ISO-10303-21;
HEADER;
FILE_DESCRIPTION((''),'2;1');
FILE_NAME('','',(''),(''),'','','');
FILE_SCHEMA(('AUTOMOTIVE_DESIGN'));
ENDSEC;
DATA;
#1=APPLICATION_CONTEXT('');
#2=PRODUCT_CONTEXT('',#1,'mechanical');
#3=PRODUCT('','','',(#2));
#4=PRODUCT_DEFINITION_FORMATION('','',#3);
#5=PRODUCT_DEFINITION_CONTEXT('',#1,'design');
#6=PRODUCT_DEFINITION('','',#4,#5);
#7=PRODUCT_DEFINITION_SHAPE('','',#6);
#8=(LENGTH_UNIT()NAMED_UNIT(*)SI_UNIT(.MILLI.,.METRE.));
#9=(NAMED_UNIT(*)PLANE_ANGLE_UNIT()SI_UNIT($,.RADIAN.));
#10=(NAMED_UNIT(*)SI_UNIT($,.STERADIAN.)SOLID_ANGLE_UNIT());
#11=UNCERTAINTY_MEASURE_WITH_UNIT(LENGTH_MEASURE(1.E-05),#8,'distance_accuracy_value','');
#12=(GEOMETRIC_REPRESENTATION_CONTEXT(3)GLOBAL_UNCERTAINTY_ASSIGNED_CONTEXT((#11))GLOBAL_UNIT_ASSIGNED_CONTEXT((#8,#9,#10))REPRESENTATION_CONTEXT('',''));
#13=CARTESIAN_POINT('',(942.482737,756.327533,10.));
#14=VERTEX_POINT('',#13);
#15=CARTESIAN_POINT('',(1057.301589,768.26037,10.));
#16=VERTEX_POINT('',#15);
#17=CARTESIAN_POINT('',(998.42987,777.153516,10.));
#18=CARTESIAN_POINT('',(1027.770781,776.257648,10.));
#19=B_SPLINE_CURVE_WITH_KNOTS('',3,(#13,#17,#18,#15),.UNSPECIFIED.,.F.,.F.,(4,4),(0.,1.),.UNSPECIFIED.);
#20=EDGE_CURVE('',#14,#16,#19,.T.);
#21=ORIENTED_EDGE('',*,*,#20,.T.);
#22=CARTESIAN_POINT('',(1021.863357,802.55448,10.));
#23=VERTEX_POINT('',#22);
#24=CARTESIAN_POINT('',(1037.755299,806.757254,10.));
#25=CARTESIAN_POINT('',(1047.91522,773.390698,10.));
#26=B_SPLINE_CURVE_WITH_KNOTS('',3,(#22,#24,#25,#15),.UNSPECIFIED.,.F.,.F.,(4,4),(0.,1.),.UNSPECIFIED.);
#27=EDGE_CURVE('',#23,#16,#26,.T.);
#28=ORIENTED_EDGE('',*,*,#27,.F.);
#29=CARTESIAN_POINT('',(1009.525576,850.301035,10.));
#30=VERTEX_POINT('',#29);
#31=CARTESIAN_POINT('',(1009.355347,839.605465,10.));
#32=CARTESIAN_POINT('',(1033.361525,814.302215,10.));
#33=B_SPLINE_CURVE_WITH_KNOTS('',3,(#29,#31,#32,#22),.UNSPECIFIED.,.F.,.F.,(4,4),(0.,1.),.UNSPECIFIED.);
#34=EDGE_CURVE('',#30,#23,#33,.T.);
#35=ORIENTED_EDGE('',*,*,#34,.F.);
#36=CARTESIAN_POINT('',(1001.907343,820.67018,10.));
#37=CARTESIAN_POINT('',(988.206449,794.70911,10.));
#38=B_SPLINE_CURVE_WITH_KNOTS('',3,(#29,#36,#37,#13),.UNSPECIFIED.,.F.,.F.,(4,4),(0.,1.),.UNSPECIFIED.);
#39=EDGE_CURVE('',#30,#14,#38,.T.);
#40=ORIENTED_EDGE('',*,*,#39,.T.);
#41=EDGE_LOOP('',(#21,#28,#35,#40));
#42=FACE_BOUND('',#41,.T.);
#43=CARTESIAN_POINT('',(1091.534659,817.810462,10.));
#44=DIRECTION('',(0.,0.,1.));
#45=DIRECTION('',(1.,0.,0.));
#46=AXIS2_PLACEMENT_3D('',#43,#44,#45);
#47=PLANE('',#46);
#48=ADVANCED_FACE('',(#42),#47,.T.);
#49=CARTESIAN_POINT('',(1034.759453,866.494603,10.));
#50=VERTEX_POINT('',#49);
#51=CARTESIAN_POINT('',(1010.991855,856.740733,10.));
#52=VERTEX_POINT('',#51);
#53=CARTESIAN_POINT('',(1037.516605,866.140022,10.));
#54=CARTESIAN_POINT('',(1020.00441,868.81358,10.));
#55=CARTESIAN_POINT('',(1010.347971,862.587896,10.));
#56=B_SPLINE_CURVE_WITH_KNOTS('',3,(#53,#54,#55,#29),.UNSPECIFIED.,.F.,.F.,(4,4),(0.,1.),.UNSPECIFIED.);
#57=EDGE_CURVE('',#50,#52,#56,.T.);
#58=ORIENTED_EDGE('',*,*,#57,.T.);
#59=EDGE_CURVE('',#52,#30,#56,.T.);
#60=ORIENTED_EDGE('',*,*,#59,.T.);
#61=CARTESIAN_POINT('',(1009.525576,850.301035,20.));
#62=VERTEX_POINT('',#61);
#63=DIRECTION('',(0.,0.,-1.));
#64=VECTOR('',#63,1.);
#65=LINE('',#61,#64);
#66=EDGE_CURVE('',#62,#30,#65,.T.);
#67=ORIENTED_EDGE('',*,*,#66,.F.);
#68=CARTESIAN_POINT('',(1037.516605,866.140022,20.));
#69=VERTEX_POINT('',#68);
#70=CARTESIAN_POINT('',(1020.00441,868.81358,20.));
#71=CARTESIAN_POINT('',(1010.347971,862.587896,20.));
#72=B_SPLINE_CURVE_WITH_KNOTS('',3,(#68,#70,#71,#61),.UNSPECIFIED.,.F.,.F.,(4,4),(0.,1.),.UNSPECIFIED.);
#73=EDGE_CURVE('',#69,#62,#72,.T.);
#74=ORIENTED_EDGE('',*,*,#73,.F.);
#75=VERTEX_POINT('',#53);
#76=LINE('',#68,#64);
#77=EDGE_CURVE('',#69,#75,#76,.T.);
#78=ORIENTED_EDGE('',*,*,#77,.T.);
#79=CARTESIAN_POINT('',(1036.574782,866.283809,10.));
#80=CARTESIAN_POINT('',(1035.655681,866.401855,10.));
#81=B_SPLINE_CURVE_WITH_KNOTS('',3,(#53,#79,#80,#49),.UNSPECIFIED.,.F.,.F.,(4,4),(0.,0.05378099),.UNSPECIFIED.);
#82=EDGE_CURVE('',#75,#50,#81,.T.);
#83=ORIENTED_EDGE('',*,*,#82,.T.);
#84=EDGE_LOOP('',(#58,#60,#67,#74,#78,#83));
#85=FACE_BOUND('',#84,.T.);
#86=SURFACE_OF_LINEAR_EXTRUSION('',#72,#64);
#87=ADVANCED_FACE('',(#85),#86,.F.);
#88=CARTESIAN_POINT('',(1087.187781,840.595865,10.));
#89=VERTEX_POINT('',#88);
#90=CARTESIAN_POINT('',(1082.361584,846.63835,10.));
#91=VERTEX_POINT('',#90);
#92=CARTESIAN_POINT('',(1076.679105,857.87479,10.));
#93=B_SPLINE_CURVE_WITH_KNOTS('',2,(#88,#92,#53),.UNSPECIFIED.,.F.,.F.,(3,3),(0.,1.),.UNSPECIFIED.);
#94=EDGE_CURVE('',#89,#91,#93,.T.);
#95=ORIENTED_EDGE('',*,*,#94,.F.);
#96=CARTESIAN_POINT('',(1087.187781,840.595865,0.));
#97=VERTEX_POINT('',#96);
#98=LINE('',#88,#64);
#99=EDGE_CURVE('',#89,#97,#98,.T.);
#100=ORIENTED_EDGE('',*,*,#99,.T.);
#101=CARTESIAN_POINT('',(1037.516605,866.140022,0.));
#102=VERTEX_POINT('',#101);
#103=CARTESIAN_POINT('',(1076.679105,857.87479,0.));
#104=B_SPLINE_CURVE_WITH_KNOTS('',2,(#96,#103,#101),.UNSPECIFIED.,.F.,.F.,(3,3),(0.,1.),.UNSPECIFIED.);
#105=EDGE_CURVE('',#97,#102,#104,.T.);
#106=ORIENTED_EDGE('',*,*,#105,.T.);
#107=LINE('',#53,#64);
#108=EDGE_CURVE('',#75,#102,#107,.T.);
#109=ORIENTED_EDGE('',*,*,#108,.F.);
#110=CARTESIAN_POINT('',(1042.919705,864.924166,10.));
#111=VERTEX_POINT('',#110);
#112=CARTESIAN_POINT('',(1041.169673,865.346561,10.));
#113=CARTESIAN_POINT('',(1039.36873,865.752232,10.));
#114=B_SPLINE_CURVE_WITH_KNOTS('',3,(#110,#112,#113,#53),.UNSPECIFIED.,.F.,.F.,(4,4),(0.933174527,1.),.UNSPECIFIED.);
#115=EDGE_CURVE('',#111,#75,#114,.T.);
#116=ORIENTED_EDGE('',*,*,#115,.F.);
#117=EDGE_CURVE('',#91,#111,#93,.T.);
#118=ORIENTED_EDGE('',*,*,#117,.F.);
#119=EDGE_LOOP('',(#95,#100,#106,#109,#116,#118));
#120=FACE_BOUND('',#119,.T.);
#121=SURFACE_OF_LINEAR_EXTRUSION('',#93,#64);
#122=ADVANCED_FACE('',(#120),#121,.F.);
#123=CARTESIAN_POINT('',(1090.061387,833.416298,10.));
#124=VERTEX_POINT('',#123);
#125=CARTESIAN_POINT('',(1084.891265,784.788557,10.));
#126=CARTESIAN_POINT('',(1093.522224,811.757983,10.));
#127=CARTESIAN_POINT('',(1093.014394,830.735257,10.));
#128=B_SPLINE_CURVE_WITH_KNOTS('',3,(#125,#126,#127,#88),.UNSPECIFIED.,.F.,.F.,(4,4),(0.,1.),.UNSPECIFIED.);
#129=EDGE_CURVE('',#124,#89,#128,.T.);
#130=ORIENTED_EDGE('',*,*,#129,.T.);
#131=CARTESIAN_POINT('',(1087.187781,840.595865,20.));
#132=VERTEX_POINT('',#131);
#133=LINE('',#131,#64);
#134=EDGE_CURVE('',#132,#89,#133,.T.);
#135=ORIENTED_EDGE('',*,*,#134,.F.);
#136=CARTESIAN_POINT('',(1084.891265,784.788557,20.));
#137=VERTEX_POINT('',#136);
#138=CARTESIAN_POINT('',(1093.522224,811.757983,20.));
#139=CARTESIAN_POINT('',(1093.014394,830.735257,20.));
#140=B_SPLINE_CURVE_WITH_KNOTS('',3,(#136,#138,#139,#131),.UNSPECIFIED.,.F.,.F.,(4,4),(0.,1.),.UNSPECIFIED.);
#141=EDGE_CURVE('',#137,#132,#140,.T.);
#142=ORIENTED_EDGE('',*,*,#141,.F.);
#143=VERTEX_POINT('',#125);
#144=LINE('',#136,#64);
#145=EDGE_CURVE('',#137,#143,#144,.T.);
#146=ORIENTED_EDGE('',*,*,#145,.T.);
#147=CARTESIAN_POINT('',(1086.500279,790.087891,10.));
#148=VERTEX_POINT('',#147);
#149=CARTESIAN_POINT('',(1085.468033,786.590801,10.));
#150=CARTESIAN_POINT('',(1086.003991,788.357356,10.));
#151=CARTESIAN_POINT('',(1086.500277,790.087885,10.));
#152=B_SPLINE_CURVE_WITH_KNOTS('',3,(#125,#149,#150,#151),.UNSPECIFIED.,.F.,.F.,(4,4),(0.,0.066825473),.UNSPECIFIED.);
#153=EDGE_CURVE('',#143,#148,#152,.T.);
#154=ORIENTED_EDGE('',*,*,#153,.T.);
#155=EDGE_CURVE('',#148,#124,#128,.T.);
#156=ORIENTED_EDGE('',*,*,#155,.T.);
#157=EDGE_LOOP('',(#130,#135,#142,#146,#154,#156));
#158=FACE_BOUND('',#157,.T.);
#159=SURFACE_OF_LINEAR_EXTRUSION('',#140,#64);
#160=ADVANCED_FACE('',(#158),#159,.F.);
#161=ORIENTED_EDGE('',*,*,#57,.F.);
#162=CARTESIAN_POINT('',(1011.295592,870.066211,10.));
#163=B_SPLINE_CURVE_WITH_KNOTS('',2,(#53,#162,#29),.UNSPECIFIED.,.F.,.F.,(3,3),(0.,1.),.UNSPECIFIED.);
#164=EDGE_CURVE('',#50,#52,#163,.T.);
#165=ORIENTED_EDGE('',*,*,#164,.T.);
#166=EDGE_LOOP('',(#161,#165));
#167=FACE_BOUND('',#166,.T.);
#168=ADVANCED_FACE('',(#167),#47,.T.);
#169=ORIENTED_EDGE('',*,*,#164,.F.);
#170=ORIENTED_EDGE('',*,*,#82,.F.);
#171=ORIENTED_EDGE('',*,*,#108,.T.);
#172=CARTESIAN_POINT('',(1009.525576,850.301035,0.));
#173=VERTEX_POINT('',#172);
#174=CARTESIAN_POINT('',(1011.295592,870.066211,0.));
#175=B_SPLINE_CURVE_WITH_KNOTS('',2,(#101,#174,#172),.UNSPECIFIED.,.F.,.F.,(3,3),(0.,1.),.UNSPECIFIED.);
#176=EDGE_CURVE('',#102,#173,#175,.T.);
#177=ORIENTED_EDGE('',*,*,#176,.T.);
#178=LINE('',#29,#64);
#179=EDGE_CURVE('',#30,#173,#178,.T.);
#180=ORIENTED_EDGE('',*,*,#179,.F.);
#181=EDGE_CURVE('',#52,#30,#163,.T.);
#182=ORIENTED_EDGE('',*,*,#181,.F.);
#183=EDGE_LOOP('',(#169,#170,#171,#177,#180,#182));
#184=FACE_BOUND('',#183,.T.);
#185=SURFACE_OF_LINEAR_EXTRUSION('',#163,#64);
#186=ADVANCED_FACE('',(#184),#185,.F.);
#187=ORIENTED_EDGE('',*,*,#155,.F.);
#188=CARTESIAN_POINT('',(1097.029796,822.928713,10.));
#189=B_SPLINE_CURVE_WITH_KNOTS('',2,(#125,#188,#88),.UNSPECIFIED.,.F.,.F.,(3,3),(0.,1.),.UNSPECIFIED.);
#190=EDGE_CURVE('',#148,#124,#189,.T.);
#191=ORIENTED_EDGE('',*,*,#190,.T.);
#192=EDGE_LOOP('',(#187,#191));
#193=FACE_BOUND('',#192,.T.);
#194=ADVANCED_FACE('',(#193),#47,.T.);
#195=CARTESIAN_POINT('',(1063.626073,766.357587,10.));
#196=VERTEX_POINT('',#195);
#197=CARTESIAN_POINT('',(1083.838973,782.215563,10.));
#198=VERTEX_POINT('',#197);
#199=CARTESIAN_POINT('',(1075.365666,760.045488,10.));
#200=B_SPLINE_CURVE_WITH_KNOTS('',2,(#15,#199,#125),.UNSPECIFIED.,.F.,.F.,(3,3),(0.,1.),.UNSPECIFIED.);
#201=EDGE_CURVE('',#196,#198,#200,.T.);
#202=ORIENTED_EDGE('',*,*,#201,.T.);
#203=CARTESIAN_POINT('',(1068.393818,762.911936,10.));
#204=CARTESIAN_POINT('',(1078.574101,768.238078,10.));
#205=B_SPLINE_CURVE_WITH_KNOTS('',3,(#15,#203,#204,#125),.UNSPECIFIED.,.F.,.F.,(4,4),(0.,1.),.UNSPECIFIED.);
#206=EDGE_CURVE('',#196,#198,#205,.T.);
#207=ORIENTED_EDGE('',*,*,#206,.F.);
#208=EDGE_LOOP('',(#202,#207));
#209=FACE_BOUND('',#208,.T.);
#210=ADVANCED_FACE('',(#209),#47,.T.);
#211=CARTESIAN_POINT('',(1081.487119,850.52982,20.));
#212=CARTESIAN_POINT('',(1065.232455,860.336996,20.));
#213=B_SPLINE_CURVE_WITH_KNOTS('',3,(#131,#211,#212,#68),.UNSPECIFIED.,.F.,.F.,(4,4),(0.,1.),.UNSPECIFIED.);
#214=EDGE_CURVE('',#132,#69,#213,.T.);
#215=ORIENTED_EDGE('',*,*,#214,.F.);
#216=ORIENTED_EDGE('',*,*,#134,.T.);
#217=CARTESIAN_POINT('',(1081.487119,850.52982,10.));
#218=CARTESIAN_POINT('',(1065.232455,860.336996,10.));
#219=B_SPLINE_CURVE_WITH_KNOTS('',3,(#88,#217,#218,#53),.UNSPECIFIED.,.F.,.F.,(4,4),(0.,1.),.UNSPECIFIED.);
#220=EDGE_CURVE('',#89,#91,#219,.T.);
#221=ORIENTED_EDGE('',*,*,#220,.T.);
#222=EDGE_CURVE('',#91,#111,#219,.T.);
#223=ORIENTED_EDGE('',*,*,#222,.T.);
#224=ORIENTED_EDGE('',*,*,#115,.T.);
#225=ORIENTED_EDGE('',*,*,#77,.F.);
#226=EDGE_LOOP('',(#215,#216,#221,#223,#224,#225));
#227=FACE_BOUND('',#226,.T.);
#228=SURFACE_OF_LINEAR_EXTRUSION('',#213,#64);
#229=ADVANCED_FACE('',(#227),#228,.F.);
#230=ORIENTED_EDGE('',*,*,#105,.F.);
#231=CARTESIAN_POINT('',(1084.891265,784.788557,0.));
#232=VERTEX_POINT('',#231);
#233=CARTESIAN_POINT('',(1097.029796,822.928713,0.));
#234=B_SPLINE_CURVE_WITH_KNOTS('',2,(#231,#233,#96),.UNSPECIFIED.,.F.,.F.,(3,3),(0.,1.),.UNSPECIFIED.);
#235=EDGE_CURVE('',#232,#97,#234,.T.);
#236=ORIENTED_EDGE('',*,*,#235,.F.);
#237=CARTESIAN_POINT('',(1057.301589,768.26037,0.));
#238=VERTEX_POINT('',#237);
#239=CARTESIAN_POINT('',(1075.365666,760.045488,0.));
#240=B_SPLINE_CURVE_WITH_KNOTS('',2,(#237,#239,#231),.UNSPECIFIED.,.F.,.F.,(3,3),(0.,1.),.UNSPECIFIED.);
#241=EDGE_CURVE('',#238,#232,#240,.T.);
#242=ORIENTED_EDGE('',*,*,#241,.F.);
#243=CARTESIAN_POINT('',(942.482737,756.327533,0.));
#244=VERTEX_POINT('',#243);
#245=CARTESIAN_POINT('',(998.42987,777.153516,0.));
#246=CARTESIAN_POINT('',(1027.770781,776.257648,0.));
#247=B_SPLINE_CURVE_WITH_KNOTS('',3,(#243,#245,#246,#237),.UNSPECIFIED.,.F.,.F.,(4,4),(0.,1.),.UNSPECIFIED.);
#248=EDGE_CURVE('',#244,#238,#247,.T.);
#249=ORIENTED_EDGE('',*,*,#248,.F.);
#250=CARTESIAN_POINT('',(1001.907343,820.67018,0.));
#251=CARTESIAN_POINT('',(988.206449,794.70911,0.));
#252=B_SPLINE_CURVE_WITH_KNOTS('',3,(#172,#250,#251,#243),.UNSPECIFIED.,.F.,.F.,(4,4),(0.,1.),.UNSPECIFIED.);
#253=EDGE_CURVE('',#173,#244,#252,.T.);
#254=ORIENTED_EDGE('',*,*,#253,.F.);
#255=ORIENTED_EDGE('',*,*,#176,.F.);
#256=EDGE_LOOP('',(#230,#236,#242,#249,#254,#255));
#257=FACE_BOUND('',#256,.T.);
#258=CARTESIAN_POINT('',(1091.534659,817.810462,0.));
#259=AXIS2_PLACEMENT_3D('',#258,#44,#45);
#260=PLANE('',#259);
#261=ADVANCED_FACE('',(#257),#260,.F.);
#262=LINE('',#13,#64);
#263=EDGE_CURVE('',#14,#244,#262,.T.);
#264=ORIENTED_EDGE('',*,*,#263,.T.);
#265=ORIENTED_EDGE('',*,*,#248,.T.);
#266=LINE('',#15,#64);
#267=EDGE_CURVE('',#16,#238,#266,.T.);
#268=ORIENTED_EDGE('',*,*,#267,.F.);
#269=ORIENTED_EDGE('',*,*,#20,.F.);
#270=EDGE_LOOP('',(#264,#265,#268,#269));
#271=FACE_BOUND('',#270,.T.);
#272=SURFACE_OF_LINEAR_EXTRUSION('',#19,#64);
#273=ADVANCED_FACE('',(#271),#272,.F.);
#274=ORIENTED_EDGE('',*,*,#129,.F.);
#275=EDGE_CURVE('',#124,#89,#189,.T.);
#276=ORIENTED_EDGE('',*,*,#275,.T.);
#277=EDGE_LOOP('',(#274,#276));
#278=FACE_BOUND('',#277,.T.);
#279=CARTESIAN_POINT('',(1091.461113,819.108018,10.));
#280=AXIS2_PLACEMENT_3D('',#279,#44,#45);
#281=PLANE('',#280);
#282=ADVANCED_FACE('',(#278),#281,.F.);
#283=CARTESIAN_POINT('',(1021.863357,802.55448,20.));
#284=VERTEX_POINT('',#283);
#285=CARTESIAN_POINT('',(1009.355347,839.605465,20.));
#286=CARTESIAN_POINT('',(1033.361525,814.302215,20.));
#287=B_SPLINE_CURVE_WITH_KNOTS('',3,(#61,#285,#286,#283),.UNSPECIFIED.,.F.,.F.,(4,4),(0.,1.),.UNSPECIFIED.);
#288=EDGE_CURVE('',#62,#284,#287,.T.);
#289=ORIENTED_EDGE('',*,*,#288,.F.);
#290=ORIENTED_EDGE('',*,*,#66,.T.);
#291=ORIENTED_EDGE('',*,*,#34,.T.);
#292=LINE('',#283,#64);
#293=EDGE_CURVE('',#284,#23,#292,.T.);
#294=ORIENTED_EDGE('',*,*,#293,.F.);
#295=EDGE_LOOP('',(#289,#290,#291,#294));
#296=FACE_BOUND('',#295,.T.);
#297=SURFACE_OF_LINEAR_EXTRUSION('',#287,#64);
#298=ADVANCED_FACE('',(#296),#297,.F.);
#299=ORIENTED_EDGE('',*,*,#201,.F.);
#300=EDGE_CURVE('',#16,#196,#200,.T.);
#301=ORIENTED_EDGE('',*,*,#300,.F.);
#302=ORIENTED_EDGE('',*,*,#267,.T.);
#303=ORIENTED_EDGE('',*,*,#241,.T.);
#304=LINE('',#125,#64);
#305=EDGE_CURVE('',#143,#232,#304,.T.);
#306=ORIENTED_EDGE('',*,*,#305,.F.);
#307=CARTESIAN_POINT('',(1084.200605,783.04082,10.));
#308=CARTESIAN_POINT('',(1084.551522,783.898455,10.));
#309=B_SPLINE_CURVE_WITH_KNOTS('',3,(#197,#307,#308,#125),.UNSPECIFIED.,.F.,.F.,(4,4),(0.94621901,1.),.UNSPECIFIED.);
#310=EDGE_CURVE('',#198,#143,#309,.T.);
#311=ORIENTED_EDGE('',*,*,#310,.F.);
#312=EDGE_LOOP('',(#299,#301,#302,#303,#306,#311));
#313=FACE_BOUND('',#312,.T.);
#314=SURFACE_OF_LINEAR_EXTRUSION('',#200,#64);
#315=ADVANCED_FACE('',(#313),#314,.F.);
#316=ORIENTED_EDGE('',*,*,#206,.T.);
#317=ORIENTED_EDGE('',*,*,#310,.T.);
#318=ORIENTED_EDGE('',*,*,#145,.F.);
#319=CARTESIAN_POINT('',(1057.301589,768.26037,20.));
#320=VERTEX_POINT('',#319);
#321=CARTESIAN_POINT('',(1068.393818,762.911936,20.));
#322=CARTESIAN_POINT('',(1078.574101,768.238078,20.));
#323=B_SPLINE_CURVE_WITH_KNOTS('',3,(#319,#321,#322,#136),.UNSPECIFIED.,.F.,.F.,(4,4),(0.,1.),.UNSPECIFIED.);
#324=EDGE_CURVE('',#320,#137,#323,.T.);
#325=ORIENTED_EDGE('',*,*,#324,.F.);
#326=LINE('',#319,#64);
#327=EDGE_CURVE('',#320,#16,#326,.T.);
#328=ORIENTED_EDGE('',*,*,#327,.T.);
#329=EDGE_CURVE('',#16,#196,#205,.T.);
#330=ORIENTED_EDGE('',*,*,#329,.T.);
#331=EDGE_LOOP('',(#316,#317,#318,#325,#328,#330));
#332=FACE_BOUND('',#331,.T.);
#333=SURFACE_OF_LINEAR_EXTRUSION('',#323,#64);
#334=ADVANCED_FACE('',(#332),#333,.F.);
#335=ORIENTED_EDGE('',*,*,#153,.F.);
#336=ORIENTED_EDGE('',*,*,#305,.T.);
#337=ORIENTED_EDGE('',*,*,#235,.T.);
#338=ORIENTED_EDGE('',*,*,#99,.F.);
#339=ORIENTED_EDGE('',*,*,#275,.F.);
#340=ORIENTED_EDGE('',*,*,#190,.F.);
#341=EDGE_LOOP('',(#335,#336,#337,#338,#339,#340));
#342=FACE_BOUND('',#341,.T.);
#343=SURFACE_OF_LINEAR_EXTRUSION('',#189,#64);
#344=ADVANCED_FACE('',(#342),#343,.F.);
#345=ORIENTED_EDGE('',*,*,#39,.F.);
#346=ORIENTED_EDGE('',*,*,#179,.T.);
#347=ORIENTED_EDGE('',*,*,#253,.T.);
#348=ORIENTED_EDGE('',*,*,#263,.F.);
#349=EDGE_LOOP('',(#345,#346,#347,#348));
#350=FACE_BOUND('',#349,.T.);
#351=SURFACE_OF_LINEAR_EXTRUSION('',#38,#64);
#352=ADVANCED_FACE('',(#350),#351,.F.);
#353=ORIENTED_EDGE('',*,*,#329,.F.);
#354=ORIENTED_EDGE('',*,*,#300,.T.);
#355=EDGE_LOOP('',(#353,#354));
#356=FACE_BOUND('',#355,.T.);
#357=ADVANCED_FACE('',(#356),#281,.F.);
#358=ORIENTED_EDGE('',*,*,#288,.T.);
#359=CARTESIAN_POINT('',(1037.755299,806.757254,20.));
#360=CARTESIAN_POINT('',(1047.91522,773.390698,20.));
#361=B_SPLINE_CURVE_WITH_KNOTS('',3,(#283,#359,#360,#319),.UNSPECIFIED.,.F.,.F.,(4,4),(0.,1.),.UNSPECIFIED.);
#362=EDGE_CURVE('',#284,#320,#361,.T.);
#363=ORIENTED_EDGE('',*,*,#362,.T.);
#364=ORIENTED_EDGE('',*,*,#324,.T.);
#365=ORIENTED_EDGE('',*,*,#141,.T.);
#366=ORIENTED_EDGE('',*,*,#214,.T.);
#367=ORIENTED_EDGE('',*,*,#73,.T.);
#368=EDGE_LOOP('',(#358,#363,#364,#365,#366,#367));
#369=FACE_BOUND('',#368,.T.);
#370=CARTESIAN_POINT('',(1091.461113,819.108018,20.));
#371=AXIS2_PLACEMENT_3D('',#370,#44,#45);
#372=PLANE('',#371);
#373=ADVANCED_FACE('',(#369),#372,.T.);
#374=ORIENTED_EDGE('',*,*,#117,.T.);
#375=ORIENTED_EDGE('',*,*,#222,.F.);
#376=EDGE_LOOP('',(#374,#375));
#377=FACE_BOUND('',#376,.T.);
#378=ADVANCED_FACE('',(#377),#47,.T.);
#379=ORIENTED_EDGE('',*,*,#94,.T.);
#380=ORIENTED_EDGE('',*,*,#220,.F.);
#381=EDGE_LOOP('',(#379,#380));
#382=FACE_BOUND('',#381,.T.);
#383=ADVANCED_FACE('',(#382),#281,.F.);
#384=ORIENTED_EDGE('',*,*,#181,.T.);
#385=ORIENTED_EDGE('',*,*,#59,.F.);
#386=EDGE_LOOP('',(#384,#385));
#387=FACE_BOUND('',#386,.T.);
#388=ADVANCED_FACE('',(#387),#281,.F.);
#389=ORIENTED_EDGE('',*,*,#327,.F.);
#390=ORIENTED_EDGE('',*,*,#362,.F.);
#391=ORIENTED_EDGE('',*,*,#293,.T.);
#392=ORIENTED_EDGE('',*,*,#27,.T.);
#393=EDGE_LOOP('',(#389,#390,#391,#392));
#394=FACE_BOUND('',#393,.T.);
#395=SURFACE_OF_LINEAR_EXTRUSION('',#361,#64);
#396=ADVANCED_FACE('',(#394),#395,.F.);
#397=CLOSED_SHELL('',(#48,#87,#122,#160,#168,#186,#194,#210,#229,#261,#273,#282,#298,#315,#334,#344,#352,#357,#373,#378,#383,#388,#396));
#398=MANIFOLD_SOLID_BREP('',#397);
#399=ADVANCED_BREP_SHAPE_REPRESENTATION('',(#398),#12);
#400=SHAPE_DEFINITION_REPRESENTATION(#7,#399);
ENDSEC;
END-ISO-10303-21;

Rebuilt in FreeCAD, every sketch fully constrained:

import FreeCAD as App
import Part
import Sketcher

doc = App.newDocument("Part")
body = doc.addObject("PartDesign::Body", "Body")

# Sketch on XY plane
sketch1 = body.newObject("Sketcher::SketchObject", "Sketch")
sketch1.AttachmentSupport = (doc.getObject("XY_Plane"), [""])
sketch1.MapMode = "FlatFace"
sketch1.addGeometry([
    Part.BSplineCurve([App.Vector(1087.187781, 840.595865, 0), App.Vector(1076.679105, 857.87479, 0), App.Vector(1037.516605, 866.140022, 0)], [3, 3], [0, 1], False, 2, [1, 1, 1], False),  # 0
    Part.BSplineCurve([App.Vector(1037.516605, 866.140022, 0), App.Vector(1011.295592, 870.066211, 0), App.Vector(1009.525576, 850.301035, 0)], [3, 3], [0, 1], False, 2, [1, 1, 1], False),  # 1
    Part.BSplineCurve([App.Vector(1009.525576, 850.301035, 0), App.Vector(1001.907343, 820.67018, 0), App.Vector(988.206449, 794.70911, 0), App.Vector(942.482737, 756.327533, 0)], [4, 4], [0, 1], False, 3, [1, 1, 1, 1], False),  # 2
    Part.BSplineCurve([App.Vector(1057.301589, 768.26037, 0), App.Vector(1027.770781, 776.257648, 0), App.Vector(998.42987, 777.153516, 0), App.Vector(942.482737, 756.327533, 0)], [4, 4], [0, 1], False, 3, [1, 1, 1, 1], False),  # 3
    Part.BSplineCurve([App.Vector(1084.891265, 784.788557, 0), App.Vector(1075.365666, 760.045488, 0), App.Vector(1057.301589, 768.26037, 0)], [3, 3], [0, 1], False, 2, [1, 1, 1], False),  # 4
    Part.BSplineCurve([App.Vector(1087.187781, 840.595865, 0), App.Vector(1097.029796, 822.928713, 0), App.Vector(1084.891265, 784.788557, 0)], [3, 3], [0, 1], False, 2, [1, 1, 1], False),  # 5
], False)
sketch1.addConstraint([
    Sketcher.Constraint("Block", 0),
    Sketcher.Constraint("Block", 1),
    Sketcher.Constraint("Block", 2),
    Sketcher.Constraint("Block", 3),
    Sketcher.Constraint("Block", 4),
    Sketcher.Constraint("Block", 5),
])
pad1 = body.newObject("PartDesign::Pad", "Pad")
pad1.Profile = sketch1
pad1.Length = 10

# Sketch on XY plane
sketch2 = body.newObject("Sketcher::SketchObject", "Sketch001")
sketch2.AttachmentSupport = (doc.getObject("XY_Plane"), [""])
sketch2.MapMode = "FlatFace"
sketch2.AttachmentOffset = App.Placement(App.Vector(0, 0, 10), App.Rotation())
sketch2.addGeometry([
    Part.BSplineCurve([App.Vector(1087.187781, 840.595865, 0), App.Vector(1081.487119, 850.52982, 0), App.Vector(1065.232455, 860.336996, 0), App.Vector(1037.516605, 866.140022, 0)], [4, 4], [0, 1], False, 3, [1, 1, 1, 1], False),  # 0
    Part.BSplineCurve([App.Vector(1037.516605, 866.140022, 0), App.Vector(1020.00441, 868.81358, 0), App.Vector(1010.347971, 862.587896, 0), App.Vector(1009.525576, 850.301035, 0)], [4, 4], [0, 1], False, 3, [1, 1, 1, 1], False),  # 1
    Part.BSplineCurve([App.Vector(1009.525576, 850.301035, 0), App.Vector(1009.355347, 839.605465, 0), App.Vector(1033.361525, 814.302215, 0), App.Vector(1021.863357, 802.55448, 0)], [4, 4], [0, 1], False, 3, [1, 1, 1, 1], False),  # 2
    Part.BSplineCurve([App.Vector(1057.301589, 768.26037, 0), App.Vector(1047.91522, 773.390698, 0), App.Vector(1037.755299, 806.757254, 0), App.Vector(1021.863357, 802.55448, 0)], [4, 4], [0, 1], False, 3, [1, 1, 1, 1], False),  # 3
    Part.BSplineCurve([App.Vector(1084.891265, 784.788557, 0), App.Vector(1078.574101, 768.238078, 0), App.Vector(1068.393818, 762.911936, 0), App.Vector(1057.301589, 768.26037, 0)], [4, 4], [0, 1], False, 3, [1, 1, 1, 1], False),  # 4
    Part.BSplineCurve([App.Vector(1087.187781, 840.595865, 0), App.Vector(1093.014394, 830.735257, 0), App.Vector(1093.522224, 811.757983, 0), App.Vector(1084.891265, 784.788557, 0)], [4, 4], [0, 1], False, 3, [1, 1, 1, 1], False),  # 5
], False)
sketch2.addConstraint([
    Sketcher.Constraint("Block", 0),
    Sketcher.Constraint("Block", 1),
    Sketcher.Constraint("Block", 2),
    Sketcher.Constraint("Block", 3),
    Sketcher.Constraint("Block", 4),
    Sketcher.Constraint("Block", 5),
])
pad2 = body.newObject("PartDesign::Pad", "Pad001")
pad2.Profile = sketch2
pad2.Length = 10

doc.recompute()
